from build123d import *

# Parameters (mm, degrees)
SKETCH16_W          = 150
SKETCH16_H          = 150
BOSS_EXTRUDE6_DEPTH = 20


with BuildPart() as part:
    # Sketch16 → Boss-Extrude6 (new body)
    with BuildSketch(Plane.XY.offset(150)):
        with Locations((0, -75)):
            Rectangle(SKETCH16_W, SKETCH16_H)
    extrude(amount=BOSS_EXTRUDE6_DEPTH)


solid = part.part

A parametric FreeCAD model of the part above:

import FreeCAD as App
import Part
import Sketcher
from FreeCAD import Vector

doc = App.newDocument("Part")
body = doc.addObject("PartDesign::Body", "Body")

# Sketch on XY plane
sketch1 = body.newObject("Sketcher::SketchObject", "Sketch")
sketch1.AttachmentSupport = (doc.getObject("XY_Plane"), [""])
sketch1.MapMode = "FlatFace"
sketch1.AttachmentOffset = App.Placement(Vector(0, 0, 150), App.Rotation())
sketch1.addGeometry([
    Part.LineSegment(Vector(-75, 0, 0), Vector(-75, -150, 0)),
    Part.LineSegment(Vector(-75, -150, 0), Vector(75, -150, 0)),
    Part.LineSegment(Vector(75, -150, 0), Vector(75, 0, 0)),
    Part.LineSegment(Vector(75, 0, 0), Vector(-75, 0, 0)),
], False)
sketch1.addConstraint([
    Sketcher.Constraint("Coincident", 0, 2, 1, 1),
    Sketcher.Constraint("Coincident", 1, 2, 2, 1),
    Sketcher.Constraint("Coincident", 2, 2, 3, 1),
    Sketcher.Constraint("Coincident", 3, 2, 0, 1),
    Sketcher.Constraint("Vertical", 0),
    Sketcher.Constraint("Horizontal", 1),
    Sketcher.Constraint("Vertical", 2),
    Sketcher.Constraint("Horizontal", 3),
    Sketcher.Constraint("Symmetric", 2, 2, 3, 2, -1, 1),
    Sketcher.Constraint("Equal", 3, 0),
    Sketcher.Constraint("DistanceX", 1, 1, 1, 2, 150.0),
])
pad1 = body.newObject("PartDesign::Pad", "Pad")
pad1.Profile = sketch1
pad1.Length = 20

doc.recompute()
